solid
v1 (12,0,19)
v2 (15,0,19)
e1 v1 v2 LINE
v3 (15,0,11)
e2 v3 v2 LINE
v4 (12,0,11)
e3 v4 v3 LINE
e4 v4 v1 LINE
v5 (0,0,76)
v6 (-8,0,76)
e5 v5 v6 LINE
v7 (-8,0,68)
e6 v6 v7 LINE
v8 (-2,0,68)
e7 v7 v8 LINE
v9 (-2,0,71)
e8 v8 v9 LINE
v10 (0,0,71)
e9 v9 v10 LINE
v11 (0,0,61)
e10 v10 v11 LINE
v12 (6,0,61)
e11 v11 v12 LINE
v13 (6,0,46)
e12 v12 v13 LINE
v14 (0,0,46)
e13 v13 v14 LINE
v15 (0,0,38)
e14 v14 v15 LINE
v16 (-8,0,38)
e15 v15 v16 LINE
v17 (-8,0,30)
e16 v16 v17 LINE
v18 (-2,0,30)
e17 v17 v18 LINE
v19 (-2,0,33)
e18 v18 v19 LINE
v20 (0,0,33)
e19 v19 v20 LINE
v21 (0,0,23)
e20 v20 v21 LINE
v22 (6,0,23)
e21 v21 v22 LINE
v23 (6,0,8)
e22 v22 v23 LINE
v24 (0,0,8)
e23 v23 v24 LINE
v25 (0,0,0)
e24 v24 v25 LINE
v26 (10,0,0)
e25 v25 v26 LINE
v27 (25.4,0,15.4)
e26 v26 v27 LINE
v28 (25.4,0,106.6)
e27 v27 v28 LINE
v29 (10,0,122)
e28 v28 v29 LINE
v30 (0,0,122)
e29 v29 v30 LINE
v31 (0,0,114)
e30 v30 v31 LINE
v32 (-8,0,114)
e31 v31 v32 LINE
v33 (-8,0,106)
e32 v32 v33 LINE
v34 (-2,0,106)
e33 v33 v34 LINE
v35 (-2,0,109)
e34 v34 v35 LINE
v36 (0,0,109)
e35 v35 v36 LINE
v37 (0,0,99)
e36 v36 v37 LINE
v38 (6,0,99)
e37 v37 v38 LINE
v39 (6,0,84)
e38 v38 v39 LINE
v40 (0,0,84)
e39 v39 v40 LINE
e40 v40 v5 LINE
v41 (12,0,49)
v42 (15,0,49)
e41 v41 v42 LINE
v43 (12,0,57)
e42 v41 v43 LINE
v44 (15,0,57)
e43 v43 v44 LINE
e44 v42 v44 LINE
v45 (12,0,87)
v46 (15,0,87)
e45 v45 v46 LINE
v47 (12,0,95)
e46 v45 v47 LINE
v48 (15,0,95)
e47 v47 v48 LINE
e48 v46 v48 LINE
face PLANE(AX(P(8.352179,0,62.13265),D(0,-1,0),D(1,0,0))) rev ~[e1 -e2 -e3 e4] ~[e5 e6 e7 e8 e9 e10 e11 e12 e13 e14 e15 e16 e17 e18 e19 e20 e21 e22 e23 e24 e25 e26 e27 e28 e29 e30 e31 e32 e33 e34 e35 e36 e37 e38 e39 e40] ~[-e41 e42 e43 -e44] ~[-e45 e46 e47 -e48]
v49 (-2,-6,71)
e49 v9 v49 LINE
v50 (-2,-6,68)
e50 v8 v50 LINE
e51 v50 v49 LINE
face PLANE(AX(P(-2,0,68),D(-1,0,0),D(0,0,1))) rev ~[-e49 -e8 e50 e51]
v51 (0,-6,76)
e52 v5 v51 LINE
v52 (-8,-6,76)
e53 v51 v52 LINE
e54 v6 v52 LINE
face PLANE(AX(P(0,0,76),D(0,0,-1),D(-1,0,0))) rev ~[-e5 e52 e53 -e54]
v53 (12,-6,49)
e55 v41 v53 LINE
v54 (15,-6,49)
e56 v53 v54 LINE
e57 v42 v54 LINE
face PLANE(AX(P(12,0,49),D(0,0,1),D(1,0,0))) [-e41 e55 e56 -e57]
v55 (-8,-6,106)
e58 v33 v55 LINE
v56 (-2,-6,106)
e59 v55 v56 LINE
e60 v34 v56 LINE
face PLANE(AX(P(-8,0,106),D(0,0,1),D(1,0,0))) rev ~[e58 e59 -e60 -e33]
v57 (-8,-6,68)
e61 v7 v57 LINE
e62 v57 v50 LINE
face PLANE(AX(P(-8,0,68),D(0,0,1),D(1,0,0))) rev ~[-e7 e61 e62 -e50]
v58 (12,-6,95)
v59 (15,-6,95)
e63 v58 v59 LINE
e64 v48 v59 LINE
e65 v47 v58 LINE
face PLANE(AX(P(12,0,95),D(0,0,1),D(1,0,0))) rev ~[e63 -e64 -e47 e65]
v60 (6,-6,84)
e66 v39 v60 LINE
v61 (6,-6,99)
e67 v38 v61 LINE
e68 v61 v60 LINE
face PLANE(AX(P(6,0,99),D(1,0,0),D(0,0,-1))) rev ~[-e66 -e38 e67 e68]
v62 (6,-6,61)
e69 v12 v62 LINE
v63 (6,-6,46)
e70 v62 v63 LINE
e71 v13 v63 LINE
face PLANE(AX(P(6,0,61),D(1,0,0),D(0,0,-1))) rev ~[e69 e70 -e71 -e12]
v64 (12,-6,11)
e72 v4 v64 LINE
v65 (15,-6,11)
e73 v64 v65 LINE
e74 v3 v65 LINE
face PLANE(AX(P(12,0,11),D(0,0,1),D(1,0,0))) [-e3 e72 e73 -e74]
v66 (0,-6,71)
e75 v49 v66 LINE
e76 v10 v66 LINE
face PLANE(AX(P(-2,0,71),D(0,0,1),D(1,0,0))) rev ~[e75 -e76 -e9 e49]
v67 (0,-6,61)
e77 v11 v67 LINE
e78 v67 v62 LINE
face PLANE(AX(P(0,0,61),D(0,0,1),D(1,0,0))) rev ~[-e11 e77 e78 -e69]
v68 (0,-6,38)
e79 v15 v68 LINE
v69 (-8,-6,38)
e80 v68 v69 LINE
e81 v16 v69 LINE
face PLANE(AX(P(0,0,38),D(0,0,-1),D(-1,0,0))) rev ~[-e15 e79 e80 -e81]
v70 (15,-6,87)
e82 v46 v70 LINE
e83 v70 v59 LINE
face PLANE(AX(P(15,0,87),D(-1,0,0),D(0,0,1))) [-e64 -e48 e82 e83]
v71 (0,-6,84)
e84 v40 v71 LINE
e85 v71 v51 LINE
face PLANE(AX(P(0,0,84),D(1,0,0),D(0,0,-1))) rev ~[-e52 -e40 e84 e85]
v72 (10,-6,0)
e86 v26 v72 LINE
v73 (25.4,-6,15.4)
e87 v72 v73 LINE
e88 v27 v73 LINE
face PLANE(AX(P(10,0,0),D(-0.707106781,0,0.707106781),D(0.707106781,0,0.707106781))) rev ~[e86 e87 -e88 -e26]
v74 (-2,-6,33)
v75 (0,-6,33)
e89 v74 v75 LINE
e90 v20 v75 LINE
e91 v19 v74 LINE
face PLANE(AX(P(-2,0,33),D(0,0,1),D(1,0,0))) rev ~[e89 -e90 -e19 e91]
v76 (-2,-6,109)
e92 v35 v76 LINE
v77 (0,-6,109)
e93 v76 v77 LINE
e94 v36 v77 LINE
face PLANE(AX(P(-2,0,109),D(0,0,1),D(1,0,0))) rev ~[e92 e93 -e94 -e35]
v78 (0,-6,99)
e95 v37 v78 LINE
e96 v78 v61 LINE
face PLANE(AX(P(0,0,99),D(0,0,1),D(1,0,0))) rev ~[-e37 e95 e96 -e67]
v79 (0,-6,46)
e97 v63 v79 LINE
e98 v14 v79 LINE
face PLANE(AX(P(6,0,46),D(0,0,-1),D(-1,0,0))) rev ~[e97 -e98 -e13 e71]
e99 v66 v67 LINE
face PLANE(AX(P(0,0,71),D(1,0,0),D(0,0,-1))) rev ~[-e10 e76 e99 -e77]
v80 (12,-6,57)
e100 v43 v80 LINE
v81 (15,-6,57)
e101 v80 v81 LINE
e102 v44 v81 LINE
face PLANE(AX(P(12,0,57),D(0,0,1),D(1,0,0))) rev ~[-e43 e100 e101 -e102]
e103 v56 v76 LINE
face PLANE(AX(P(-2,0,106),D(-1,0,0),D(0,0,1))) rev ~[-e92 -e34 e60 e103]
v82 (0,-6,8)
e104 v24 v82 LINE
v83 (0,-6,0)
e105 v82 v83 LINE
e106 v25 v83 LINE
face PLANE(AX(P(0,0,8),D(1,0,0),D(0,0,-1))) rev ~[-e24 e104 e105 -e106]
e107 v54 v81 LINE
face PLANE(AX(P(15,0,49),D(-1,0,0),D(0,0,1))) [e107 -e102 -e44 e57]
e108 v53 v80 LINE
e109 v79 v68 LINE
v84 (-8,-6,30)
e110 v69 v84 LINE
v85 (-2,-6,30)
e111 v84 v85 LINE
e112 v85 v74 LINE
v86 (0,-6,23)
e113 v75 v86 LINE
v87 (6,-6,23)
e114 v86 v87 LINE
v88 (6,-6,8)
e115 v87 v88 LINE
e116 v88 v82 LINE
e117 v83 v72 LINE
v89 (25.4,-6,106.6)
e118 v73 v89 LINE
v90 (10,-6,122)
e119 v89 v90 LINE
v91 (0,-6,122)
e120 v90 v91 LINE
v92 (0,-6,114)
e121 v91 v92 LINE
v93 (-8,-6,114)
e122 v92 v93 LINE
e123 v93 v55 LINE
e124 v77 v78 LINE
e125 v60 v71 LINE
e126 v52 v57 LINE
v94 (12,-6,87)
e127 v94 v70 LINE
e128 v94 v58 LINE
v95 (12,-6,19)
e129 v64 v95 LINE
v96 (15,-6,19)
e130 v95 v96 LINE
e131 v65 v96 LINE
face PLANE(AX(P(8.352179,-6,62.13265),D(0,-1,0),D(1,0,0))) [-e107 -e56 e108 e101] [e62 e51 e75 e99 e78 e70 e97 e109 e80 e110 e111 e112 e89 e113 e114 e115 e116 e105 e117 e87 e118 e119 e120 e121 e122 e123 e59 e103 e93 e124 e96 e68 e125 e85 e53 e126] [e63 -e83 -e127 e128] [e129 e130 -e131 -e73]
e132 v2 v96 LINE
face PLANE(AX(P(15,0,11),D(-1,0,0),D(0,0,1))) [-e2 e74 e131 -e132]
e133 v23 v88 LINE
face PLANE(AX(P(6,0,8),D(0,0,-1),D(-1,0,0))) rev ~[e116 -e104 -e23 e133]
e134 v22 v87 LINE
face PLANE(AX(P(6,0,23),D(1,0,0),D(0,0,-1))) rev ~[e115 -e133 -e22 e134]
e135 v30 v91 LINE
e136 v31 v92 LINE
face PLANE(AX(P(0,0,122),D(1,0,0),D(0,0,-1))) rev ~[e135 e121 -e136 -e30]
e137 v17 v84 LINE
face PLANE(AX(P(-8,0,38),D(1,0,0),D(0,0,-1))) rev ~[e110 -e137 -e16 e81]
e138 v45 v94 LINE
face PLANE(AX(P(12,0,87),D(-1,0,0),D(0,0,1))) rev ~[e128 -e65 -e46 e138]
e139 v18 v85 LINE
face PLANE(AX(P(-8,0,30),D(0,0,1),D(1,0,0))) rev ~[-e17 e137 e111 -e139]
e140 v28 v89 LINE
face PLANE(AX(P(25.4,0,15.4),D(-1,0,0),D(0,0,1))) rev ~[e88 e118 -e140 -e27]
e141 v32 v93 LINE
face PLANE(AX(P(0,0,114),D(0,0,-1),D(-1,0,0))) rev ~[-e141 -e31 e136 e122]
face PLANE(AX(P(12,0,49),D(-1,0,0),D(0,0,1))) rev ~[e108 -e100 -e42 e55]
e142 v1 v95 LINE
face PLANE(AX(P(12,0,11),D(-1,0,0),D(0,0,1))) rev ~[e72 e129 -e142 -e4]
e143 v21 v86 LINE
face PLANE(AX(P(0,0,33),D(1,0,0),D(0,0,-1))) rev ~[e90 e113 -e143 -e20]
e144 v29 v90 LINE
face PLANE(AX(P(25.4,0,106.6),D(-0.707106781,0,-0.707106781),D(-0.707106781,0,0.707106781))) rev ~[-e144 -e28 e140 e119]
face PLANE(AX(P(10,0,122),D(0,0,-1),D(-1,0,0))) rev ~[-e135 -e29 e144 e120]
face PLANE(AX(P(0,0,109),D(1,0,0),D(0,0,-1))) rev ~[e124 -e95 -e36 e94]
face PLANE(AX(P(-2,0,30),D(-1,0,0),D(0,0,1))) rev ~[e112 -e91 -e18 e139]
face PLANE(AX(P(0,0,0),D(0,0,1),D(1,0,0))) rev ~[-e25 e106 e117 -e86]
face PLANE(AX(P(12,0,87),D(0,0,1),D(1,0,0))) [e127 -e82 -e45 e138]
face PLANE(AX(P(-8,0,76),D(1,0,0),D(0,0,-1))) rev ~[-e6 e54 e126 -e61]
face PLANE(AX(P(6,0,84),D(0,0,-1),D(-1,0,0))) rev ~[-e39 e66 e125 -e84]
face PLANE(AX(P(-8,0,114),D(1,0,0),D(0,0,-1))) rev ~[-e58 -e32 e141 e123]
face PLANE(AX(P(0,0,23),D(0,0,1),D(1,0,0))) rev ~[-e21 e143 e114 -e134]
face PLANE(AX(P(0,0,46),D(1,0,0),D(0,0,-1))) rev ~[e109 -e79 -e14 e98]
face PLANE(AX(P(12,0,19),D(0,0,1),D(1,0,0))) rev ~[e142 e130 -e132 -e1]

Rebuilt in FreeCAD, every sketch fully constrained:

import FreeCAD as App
import Part
import Sketcher

V = App.Vector


def add_polygon(sketch, points):
    """Adds a closed chain of lines whose ends are joined by coincident constraints."""
    first, n = sketch.GeometryCount, len(points)
    for a, b in zip(points, points[1:] + points[:1]):
        sketch.addGeometry(Part.LineSegment(App.Vector(*a, 0), App.Vector(*b, 0)), False)
    for i in range(n):
        sketch.addConstraint(Sketcher.Constraint("Coincident", first + i, 2, first + (i + 1) % n, 1))

doc = App.newDocument("Part")
params = doc.addObject("Spreadsheet::Sheet", "Params")
for row, (alias, value) in enumerate([
    ("sketch1_width", "8 mm"),
    ("sketch1_width2", "6 mm"),
    ("sketch1_width3", "10 mm"),
    ("sketch1_width4", "3 mm"),
    ("sketch1_height", "15 mm"),
    ("pad1_length", "6 mm"),
], start=1):
    params.set(f"A{row}", alias)
    params.set(f"B{row}", "=" + value)
    params.setAlias(f"B{row}", alias)

body = doc.addObject("PartDesign::Body", "Body")

sketch1 = body.newObject("Sketcher::SketchObject", "Sketch")
sketch1.AttachmentSupport = (doc.getObject("XZ_Plane"), [""])
sketch1.MapMode = "FlatFace"
add_polygon(sketch1, [(0, 46), (0, 38), (-8, 38), (-8, 30), (-2, 30), (-2, 33), (0, 33), (0, 23), (6, 23), (6, 8), (0, 8), (0, 0), (10, 0), (25.4, 15.4), (25.4, 106.6), (10, 122), (0, 122), (0, 114), (-8, 114), (-8, 106), (-2, 106), (-2, 109), (0, 109), (0, 99), (6, 99), (6, 84), (0, 84), (0, 76), (-8, 76), (-8, 68), (-2, 68), (-2, 71), (0, 71), (0, 61), (6, 61), (6, 46)])
add_polygon(sketch1, [(15, 11), (12, 11), (12, 19), (15, 19)])
add_polygon(sketch1, [(15, 49), (12, 49), (12, 57), (15, 57)])
add_polygon(sketch1, [(15, 87), (12, 87), (12, 95), (15, 95)])
sketch1.addConstraint([
    Sketcher.Constraint("Vertical", 0),
    Sketcher.Constraint("Horizontal", 1),
    Sketcher.Constraint("Vertical", 2),
    Sketcher.Constraint("Horizontal", 3),
    Sketcher.Constraint("Vertical", 4),
    Sketcher.Constraint("Horizontal", 5),
    Sketcher.Constraint("Vertical", 6),
    Sketcher.Constraint("Horizontal", 7),
    Sketcher.Constraint("Vertical", 8),
    Sketcher.Constraint("Horizontal", 9),
    Sketcher.Constraint("Vertical", 10),
    Sketcher.Constraint("Horizontal", 11),
    Sketcher.Constraint("Vertical", 13),
    Sketcher.Constraint("Horizontal", 15),
    Sketcher.Constraint("Vertical", 16),
    Sketcher.Constraint("Horizontal", 17),
    Sketcher.Constraint("Vertical", 18),
    Sketcher.Constraint("Horizontal", 19),
    Sketcher.Constraint("Vertical", 20),
    Sketcher.Constraint("Horizontal", 21),
    Sketcher.Constraint("Vertical", 22),
    Sketcher.Constraint("Horizontal", 23),
    Sketcher.Constraint("Vertical", 24),
    Sketcher.Constraint("Horizontal", 25),
    Sketcher.Constraint("Vertical", 26),
    Sketcher.Constraint("Horizontal", 27),
    Sketcher.Constraint("Vertical", 28),
    Sketcher.Constraint("Horizontal", 29),
    Sketcher.Constraint("Vertical", 30),
    Sketcher.Constraint("Horizontal", 31),
    Sketcher.Constraint("Vertical", 32),
    Sketcher.Constraint("Horizontal", 33),
    Sketcher.Constraint("Vertical", 34),
    Sketcher.Constraint("Horizontal", 35),
    Sketcher.Constraint("Horizontal", 36),
    Sketcher.Constraint("Vertical", 37),
    Sketcher.Constraint("Horizontal", 38),
    Sketcher.Constraint("Vertical", 39),
    Sketcher.Constraint("Horizontal", 40),
    Sketcher.Constraint("Vertical", 41),
    Sketcher.Constraint("Horizontal", 42),
    Sketcher.Constraint("Vertical", 43),
    Sketcher.Constraint("Horizontal", 44),
    Sketcher.Constraint("Vertical", 45),
    Sketcher.Constraint("Horizontal", 46),
    Sketcher.Constraint("Vertical", 47),
    Sketcher.Constraint("Coincident", 10, 2, -1, 1),
    Sketcher.Constraint("PointOnObject", 0, 2, -2),
    Sketcher.Constraint("PointOnObject", 5, 2, -2),
    Sketcher.Constraint("PointOnObject", 15, 2, -2),
    Sketcher.Constraint("PointOnObject", 21, 2, -2),
    Sketcher.Constraint("PointOnObject", 25, 2, -2),
    Sketcher.Constraint("PointOnObject", 31, 2, -2),
    Sketcher.Constraint("Perpendicular", 12, 14),
    Sketcher.Constraint("Vertical", 11, 2, 14, 2),
    Sketcher.Constraint("Vertical", 2, 2, 17, 2),
    Sketcher.Constraint("Vertical", 4, 2, 19, 2),
    Sketcher.Constraint("Vertical", 8, 2, 23, 2),
    Sketcher.Constraint("Vertical", 18, 2, 27, 2),
    Sketcher.Constraint("Vertical", 20, 2, 29, 2),
    Sketcher.Constraint("Vertical", 24, 2, 33, 2),
    Sketcher.Constraint("Vertical", 37, 2, 40, 2),
    Sketcher.Constraint("Vertical", 39, 2, 42, 2),
    Sketcher.Constraint("Vertical", 41, 2, 44, 2),
    Sketcher.Constraint("Vertical", 43, 2, 46, 2),
    Sketcher.Constraint("Equal", 3, 7),
    Sketcher.Constraint("Equal", 27, 0),
    Sketcher.Constraint("Equal", 0, 2),
    Sketcher.Constraint("Equal", 46, 4),
    Sketcher.Constraint("Equal", 15, 6),
    Sketcher.Constraint("Equal", 2, 10),
    Sketcher.Constraint("Equal", 10, 16),
    Sketcher.Constraint("Equal", 16, 18),
    Sketcher.Constraint("Equal", 4, 20),
    Sketcher.Constraint("Equal", 6, 22),
    Sketcher.Constraint("Equal", 8, 24),
    Sketcher.Constraint("Equal", 18, 26),
    Sketcher.Constraint("Equal", 26, 28),
    Sketcher.Constraint("Equal", 20, 30),
    Sketcher.Constraint("Equal", 22, 32),
    Sketcher.Constraint("Equal", 24, 34),
    Sketcher.Constraint("Equal", 28, 37),
    Sketcher.Constraint("Equal", 39, 41),
    Sketcher.Constraint("Equal", 43, 45),
    Sketcher.Constraint("Equal", 12, 14),
    Sketcher.Constraint("DistanceX", 1, 2, 1, 1, 8.0),
    Sketcher.Constraint("DistanceX", 3, 1, 3, 2, 6.0),
    Sketcher.Constraint("DistanceX", 11, 1, 11, 2, 10.0),
    Sketcher.Constraint("DistanceX", 36, 2, 36, 1, 3.0),
    Sketcher.Constraint("DistanceY", 8, 2, 8, 1, 15.0),
    Sketcher.Constraint("DistanceY", 13, 1, 13, 2, 91.2),
    Sketcher.Constraint("DistanceX", -1, 1, 36, 2, 12.0),
    Sketcher.Constraint("DistanceY", -1, 1, 36, 2, 11.0),
    Sketcher.Constraint("DistanceY", -1, 1, 40, 2, 49.0),
    Sketcher.Constraint("DistanceY", -1, 1, 44, 2, 87.0),
])
sketch1.setExpression("Constraints[133]", "Params.sketch1_width")
sketch1.setExpression("Constraints[134]", "Params.sketch1_width2")
sketch1.setExpression("Constraints[135]", "Params.sketch1_width3")
sketch1.setExpression("Constraints[136]", "Params.sketch1_width4")
sketch1.setExpression("Constraints[137]", "Params.sketch1_height")
pad1 = body.newObject("PartDesign::Pad", "Pad")
pad1.Profile = sketch1
pad1.setExpression("Length", "Params.pad1_length")

doc.recompute()
